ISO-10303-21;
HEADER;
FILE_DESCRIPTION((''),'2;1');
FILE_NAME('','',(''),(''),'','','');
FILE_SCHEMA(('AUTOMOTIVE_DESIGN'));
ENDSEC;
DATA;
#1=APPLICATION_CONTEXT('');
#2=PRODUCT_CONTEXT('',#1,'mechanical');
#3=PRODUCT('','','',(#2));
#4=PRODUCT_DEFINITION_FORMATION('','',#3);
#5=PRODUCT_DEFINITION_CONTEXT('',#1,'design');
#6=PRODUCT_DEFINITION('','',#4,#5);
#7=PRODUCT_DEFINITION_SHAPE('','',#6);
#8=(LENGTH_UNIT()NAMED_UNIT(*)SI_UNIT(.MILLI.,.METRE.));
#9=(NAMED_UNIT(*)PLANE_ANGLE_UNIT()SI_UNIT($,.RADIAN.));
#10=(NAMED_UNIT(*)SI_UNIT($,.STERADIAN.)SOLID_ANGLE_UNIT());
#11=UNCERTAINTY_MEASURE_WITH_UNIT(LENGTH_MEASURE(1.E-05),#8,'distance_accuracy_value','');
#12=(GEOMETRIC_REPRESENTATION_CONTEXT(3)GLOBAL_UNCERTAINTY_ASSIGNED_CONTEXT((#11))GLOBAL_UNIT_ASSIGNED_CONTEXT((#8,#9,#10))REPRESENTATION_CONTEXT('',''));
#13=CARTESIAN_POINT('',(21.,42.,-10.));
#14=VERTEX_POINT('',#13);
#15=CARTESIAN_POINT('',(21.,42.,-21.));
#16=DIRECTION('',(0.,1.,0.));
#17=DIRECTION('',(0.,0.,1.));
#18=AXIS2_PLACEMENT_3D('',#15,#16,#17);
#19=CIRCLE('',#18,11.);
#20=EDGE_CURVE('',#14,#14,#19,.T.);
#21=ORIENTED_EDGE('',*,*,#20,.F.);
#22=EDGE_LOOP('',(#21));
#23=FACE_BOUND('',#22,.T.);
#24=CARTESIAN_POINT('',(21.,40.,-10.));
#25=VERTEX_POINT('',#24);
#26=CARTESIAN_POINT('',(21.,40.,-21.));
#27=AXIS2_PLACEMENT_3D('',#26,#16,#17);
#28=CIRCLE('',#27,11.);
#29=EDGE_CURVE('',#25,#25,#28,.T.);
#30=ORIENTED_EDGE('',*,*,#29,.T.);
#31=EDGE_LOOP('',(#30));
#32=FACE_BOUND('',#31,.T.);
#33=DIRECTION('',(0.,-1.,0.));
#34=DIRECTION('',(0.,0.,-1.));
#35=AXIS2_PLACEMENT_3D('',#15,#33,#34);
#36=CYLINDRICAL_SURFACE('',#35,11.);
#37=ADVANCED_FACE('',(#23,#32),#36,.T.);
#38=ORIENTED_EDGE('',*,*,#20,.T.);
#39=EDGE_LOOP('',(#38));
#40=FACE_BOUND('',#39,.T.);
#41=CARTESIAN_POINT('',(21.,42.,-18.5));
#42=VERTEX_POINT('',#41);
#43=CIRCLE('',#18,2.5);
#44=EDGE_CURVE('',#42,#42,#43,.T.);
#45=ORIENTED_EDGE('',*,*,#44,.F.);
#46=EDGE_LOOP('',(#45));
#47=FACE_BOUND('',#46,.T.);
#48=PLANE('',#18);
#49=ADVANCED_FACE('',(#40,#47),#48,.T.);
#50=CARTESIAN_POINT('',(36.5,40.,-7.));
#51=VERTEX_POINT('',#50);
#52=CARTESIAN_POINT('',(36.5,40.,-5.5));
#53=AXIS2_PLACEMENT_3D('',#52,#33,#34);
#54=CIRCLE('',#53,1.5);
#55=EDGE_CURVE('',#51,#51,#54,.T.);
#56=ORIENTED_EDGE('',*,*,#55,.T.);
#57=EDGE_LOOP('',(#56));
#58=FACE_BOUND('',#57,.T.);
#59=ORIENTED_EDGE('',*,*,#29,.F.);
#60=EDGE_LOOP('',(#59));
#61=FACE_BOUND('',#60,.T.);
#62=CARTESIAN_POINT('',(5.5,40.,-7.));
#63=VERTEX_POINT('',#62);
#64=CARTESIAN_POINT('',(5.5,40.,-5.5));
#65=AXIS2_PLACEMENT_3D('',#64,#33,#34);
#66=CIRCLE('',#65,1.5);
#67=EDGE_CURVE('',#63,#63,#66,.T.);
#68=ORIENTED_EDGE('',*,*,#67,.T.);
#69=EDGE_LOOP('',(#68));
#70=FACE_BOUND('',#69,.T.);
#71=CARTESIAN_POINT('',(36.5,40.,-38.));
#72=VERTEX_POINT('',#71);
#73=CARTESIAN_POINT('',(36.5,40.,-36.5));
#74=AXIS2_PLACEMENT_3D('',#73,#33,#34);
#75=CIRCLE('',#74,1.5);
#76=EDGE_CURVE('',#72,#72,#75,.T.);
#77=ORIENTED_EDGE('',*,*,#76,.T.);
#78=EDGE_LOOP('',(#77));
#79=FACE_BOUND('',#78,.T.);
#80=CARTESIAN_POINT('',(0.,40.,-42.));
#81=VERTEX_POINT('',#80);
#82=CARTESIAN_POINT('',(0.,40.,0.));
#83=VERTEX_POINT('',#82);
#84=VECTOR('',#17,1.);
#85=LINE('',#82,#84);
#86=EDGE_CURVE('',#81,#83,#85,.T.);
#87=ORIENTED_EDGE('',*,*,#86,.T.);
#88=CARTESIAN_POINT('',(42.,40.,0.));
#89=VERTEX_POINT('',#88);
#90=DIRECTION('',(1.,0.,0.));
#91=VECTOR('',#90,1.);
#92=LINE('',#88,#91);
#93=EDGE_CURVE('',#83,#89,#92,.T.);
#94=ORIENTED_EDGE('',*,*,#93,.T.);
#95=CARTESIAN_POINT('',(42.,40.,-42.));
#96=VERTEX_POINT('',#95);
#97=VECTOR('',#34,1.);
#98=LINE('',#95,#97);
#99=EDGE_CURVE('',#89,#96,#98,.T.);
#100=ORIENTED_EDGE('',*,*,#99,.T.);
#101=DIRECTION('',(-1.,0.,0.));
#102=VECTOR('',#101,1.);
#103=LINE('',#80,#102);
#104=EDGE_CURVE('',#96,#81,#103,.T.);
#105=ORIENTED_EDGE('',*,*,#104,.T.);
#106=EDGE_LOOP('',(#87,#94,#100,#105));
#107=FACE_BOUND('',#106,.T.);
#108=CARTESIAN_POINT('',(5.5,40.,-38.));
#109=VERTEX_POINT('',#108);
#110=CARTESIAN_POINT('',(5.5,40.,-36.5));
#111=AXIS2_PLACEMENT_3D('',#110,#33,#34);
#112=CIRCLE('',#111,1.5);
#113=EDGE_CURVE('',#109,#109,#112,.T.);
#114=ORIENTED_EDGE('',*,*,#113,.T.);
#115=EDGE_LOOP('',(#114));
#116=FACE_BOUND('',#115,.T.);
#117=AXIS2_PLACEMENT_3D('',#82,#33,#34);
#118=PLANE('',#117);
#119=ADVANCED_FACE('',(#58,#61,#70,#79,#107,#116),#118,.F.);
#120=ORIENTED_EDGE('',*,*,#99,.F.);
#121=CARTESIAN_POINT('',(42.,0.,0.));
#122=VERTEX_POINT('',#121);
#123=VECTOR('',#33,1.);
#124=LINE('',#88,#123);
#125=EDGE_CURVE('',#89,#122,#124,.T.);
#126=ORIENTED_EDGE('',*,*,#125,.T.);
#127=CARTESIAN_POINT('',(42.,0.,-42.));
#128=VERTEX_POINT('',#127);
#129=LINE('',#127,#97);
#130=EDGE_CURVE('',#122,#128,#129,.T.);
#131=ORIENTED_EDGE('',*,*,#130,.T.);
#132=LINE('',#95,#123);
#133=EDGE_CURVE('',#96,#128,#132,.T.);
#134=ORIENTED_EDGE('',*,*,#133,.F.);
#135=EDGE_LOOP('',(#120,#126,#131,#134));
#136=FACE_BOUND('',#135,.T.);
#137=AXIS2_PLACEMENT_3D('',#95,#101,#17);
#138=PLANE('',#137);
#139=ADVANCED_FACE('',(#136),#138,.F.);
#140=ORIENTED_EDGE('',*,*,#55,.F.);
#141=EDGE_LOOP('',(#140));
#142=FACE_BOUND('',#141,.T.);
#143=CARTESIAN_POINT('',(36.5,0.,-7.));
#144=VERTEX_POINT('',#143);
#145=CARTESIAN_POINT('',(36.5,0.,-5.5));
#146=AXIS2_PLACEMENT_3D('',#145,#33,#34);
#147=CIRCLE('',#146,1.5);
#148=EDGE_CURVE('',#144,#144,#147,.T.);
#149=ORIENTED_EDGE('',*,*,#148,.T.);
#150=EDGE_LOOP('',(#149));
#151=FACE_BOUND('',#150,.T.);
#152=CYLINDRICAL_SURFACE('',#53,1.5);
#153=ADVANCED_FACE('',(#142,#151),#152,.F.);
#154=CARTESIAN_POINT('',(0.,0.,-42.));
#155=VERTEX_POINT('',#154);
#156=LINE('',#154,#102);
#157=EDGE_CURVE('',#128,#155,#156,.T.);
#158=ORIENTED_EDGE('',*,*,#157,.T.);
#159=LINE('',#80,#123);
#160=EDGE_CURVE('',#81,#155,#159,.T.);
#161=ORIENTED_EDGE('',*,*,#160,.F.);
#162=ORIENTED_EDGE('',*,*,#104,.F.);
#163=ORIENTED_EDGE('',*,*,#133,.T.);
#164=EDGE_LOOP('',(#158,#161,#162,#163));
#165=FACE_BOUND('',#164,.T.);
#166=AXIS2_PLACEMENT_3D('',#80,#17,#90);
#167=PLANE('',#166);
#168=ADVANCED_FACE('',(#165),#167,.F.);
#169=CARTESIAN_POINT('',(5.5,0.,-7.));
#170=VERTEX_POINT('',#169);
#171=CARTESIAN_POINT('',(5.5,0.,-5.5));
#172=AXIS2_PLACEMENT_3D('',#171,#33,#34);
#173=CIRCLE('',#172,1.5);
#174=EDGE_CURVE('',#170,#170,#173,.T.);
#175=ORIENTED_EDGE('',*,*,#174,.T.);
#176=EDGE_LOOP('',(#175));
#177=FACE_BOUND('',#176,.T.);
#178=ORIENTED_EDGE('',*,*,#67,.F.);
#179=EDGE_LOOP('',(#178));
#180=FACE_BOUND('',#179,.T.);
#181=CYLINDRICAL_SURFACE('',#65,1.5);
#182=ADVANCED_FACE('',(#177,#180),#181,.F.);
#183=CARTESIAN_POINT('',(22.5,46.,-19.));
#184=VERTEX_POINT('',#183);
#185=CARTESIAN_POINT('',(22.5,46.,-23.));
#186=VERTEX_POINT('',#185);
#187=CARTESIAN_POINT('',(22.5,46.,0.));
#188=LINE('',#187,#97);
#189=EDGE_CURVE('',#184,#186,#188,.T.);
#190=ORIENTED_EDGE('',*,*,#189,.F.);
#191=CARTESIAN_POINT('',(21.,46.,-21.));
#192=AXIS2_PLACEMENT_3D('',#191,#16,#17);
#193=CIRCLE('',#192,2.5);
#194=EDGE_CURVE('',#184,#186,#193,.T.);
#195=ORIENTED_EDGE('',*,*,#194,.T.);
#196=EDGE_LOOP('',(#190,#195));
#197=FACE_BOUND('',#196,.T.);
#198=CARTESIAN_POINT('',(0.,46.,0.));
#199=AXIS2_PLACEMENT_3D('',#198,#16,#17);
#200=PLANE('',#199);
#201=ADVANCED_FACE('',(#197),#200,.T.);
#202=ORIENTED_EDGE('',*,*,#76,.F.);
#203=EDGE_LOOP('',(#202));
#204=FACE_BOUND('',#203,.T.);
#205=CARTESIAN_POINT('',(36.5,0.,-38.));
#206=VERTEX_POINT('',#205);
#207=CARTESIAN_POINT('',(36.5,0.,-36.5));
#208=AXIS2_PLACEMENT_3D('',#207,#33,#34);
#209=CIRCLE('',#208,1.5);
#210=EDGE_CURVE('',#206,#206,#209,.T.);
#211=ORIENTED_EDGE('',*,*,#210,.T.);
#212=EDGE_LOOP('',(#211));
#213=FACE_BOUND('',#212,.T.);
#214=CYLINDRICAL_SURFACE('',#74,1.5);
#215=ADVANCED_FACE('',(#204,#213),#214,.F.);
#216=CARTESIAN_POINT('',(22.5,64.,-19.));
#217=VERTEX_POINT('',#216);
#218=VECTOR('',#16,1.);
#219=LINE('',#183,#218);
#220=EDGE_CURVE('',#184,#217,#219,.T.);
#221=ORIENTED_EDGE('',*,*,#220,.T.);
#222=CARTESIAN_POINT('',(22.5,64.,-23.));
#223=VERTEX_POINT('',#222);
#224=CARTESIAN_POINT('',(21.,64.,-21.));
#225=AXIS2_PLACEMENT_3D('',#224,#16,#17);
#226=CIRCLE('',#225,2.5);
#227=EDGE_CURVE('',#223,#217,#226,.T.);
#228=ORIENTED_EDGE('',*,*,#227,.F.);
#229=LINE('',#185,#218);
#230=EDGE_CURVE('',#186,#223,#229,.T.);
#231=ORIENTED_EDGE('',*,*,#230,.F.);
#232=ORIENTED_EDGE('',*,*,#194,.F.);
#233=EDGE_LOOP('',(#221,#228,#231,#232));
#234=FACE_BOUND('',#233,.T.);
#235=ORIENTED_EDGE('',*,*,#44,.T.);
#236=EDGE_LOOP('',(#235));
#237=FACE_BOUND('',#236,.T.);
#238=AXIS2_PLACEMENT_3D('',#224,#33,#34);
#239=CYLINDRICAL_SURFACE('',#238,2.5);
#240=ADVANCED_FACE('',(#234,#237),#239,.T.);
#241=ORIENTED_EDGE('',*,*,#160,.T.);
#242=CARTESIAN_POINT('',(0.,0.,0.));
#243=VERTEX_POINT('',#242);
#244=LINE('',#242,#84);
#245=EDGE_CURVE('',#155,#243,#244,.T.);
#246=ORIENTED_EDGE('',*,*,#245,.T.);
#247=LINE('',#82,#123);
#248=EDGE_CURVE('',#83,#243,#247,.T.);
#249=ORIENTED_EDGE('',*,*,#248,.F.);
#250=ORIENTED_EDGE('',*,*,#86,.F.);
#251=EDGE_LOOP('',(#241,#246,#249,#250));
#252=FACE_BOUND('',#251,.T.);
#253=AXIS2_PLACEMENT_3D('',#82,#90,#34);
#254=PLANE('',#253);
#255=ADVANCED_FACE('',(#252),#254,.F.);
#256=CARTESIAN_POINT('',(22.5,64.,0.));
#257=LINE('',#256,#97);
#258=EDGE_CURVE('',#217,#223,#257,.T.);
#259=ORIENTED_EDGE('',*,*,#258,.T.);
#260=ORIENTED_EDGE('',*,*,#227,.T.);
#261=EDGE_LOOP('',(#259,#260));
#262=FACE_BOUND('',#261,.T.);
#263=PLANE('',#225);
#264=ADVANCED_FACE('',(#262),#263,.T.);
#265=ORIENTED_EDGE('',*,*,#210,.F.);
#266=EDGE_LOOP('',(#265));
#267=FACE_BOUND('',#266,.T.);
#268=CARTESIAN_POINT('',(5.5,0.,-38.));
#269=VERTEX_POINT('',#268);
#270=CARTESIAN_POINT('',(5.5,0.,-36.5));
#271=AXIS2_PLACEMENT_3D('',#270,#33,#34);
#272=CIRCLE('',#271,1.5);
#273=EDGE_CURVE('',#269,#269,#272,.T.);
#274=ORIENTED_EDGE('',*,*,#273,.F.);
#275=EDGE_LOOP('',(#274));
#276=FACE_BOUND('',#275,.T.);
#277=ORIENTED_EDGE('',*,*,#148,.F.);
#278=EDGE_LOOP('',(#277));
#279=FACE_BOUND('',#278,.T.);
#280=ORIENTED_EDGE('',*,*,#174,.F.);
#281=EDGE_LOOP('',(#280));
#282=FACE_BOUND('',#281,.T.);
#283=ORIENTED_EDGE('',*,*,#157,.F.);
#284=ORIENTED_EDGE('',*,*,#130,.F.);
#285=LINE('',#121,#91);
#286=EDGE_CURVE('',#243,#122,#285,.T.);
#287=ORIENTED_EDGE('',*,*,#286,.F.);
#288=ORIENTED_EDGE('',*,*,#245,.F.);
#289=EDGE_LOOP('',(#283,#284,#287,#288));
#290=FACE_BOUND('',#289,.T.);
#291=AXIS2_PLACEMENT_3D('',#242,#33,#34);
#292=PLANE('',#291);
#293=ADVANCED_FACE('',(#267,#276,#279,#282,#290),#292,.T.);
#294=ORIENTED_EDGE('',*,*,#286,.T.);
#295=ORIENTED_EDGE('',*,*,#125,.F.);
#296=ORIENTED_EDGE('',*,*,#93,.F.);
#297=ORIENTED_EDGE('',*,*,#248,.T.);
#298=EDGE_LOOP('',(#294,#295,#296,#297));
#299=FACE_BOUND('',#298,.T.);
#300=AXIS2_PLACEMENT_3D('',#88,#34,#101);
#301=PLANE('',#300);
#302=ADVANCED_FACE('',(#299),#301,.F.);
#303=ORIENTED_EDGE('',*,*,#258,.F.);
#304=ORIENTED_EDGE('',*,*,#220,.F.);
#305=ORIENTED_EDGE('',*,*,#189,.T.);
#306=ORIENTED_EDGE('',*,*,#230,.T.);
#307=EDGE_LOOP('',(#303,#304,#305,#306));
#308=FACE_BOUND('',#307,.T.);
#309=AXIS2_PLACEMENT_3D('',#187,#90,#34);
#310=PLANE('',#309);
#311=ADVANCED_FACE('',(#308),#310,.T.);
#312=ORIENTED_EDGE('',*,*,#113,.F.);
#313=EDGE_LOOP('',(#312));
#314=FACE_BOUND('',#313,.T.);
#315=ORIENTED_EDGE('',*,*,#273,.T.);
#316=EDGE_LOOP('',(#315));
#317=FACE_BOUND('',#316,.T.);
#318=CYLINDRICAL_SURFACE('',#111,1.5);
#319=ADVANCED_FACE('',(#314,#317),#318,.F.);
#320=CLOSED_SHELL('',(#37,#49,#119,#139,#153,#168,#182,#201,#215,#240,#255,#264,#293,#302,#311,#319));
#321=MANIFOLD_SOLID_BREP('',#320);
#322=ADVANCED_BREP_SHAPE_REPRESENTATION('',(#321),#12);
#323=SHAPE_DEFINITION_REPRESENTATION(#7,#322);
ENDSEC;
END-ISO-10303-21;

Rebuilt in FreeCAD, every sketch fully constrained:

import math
import FreeCAD as App
import Part
import Sketcher

V = App.Vector


def add_polygon(sketch, points):
    """Adds a closed chain of lines whose ends are joined by coincident constraints."""
    first, n = sketch.GeometryCount, len(points)
    for a, b in zip(points, points[1:] + points[:1]):
        sketch.addGeometry(Part.LineSegment(App.Vector(*a, 0), App.Vector(*b, 0)), False)
    for i in range(n):
        sketch.addConstraint(Sketcher.Constraint("Coincident", first + i, 2, first + (i + 1) % n, 1))

doc = App.newDocument("Part")
body = doc.addObject("PartDesign::Body", "Body")

# Sketch on XZ plane
sketch1 = body.newObject("Sketcher::SketchObject", "Sketch")
sketch1.AttachmentSupport = (doc.getObject("XZ_Plane"), [""])
sketch1.MapMode = "FlatFace"
add_polygon(sketch1, [(0, -42), (0, 0), (42, 0), (42, -42)])  # lines 0-3
sketch1.addConstraint([
    Sketcher.Constraint("Vertical", 0),
    Sketcher.Constraint("Horizontal", 1),
    Sketcher.Constraint("Vertical", 2),
    Sketcher.Constraint("Horizontal", 3),
    Sketcher.Constraint("Coincident", 0, 2, -1, 1),
    Sketcher.Constraint("Equal", 3, 0),
    Sketcher.Constraint("DistanceX", 1, 1, 1, 2, 42.0),
])
pad1 = body.newObject("PartDesign::Pad", "Pad")
pad1.Profile = sketch1
pad1.Length = 40
pad1.Reversed = True

# Sketch on XZ plane
sketch2 = body.newObject("Sketcher::SketchObject", "Sketch001")
sketch2.AttachmentSupport = (doc.getObject("XZ_Plane"), [""])
sketch2.MapMode = "FlatFace"
sketch2.AttachmentOffset = App.Placement(V(0, 0, -40), App.Rotation())
sketch2.addGeometry(Part.Circle(V(21, -21, 0), V(0, 0, 1), 11), False)
sketch2.addConstraint([
    Sketcher.Constraint("Diameter", 0, 22.0),
    Sketcher.Constraint("DistanceX", -1, 1, 0, 3, 21.0),
    Sketcher.Constraint("DistanceY", 0, 3, -1, 1, 21.0),
])
pad2 = body.newObject("PartDesign::Pad", "Pad001")
pad2.Profile = sketch2
pad2.Length = 2
pad2.Reversed = True

# Sketch on XZ plane
sketch3 = body.newObject("Sketcher::SketchObject", "Sketch002")
sketch3.AttachmentSupport = (doc.getObject("XZ_Plane"), [""])
sketch3.MapMode = "FlatFace"
sketch3.addGeometry([
    Part.Circle(V(5.5, -36.5, 0), V(0, 0, 1), 1.5),
    Part.Circle(V(36.5, -36.5, 0), V(0, 0, 1), 1.5),
    Part.Circle(V(36.5, -5.5, 0), V(0, 0, 1), 1.5),
    Part.Circle(V(5.5, -5.5, 0), V(0, 0, 1), 1.5),
], False)
sketch3.addConstraint([
    Sketcher.Constraint("Equal", 0, 1),
    Sketcher.Constraint("Equal", 1, 2),
    Sketcher.Constraint("Equal", 2, 3),
    Sketcher.Constraint("Horizontal", 0, 3, 1, 3),
    Sketcher.Constraint("Horizontal", 2, 3, 3, 3),
    Sketcher.Constraint("Vertical", 1, 3, 2, 3),
    Sketcher.Constraint("Vertical", 0, 3, 3, 3),
    Sketcher.Constraint("Diameter", 0, 3.0),
    Sketcher.Constraint("DistanceX", 0, 3, 1, 3, 31.0),
    Sketcher.Constraint("DistanceY", 1, 3, 2, 3, 31.0),
    Sketcher.Constraint("DistanceX", -1, 1, 0, 3, 5.5),
    Sketcher.Constraint("DistanceY", 0, 3, -1, 1, 36.5),
])
pocket1 = body.newObject("PartDesign::Pocket", "Pocket")
pocket1.Profile = sketch3
pocket1.Length = 40

# Sketch on XZ plane
sketch4 = body.newObject("Sketcher::SketchObject", "Sketch003")
sketch4.AttachmentSupport = (doc.getObject("XZ_Plane"), [""])
sketch4.MapMode = "FlatFace"
sketch4.AttachmentOffset = App.Placement(V(0, 0, -42), App.Rotation())
sketch4.addGeometry(Part.Circle(V(21, -21, 0), V(0, 0, 1), 2.5), False)
sketch4.addConstraint([
    Sketcher.Constraint("Diameter", 0, 5.0),
    Sketcher.Constraint("DistanceX", -1, 1, 0, 3, 21.0),
    Sketcher.Constraint("DistanceY", 0, 3, -1, 1, 21.0),
])
pad3 = body.newObject("PartDesign::Pad", "Pad002")
pad3.Profile = sketch4
pad3.Length = 22
pad3.Reversed = True

# Sketch on XZ plane
sketch5 = body.newObject("Sketcher::SketchObject", "Sketch004")
sketch5.AttachmentSupport = (doc.getObject("XZ_Plane"), [""])
sketch5.MapMode = "FlatFace"
sketch5.AttachmentOffset = App.Placement(V(0, 0, -46), App.Rotation())
sketch5.addGeometry([
    Part.LineSegment(V(22.5, -23, 0), V(22.5, -19, 0)),
    Part.ArcOfCircle(Part.Circle(V(21, -21, 0), V(0, 0, 1), 2.5), math.radians(0), math.radians(53.130102)),
    Part.ArcOfCircle(Part.Circle(V(21, -21, 0), V(0, 0, 1), 2.5), math.radians(-53.130102), math.radians(0)),
], False)
sketch5.addConstraint([
    Sketcher.Constraint("Coincident", 0, 2, 1, 2),
    Sketcher.Constraint("Tangent", 1, 1, 2, 2),
    Sketcher.Constraint("Coincident", 2, 1, 0, 1),
    Sketcher.Constraint("Vertical", 0),
    Sketcher.Constraint("Equal", 1, 2),
    Sketcher.Constraint("Horizontal", 2, 3, 1, 1),
    Sketcher.Constraint("Radius", 1, 2.5),
    Sketcher.Constraint("DistanceY", 0, 1, 0, 2, 4.0),
    Sketcher.Constraint("DistanceX", -1, 1, 1, 3, 21.0),
    Sketcher.Constraint("DistanceY", 1, 3, -1, 1, 21.0),
])
pocket2 = body.newObject("PartDesign::Pocket", "Pocket001")
pocket2.Profile = sketch5
pocket2.Length = 18

doc.recompute()
